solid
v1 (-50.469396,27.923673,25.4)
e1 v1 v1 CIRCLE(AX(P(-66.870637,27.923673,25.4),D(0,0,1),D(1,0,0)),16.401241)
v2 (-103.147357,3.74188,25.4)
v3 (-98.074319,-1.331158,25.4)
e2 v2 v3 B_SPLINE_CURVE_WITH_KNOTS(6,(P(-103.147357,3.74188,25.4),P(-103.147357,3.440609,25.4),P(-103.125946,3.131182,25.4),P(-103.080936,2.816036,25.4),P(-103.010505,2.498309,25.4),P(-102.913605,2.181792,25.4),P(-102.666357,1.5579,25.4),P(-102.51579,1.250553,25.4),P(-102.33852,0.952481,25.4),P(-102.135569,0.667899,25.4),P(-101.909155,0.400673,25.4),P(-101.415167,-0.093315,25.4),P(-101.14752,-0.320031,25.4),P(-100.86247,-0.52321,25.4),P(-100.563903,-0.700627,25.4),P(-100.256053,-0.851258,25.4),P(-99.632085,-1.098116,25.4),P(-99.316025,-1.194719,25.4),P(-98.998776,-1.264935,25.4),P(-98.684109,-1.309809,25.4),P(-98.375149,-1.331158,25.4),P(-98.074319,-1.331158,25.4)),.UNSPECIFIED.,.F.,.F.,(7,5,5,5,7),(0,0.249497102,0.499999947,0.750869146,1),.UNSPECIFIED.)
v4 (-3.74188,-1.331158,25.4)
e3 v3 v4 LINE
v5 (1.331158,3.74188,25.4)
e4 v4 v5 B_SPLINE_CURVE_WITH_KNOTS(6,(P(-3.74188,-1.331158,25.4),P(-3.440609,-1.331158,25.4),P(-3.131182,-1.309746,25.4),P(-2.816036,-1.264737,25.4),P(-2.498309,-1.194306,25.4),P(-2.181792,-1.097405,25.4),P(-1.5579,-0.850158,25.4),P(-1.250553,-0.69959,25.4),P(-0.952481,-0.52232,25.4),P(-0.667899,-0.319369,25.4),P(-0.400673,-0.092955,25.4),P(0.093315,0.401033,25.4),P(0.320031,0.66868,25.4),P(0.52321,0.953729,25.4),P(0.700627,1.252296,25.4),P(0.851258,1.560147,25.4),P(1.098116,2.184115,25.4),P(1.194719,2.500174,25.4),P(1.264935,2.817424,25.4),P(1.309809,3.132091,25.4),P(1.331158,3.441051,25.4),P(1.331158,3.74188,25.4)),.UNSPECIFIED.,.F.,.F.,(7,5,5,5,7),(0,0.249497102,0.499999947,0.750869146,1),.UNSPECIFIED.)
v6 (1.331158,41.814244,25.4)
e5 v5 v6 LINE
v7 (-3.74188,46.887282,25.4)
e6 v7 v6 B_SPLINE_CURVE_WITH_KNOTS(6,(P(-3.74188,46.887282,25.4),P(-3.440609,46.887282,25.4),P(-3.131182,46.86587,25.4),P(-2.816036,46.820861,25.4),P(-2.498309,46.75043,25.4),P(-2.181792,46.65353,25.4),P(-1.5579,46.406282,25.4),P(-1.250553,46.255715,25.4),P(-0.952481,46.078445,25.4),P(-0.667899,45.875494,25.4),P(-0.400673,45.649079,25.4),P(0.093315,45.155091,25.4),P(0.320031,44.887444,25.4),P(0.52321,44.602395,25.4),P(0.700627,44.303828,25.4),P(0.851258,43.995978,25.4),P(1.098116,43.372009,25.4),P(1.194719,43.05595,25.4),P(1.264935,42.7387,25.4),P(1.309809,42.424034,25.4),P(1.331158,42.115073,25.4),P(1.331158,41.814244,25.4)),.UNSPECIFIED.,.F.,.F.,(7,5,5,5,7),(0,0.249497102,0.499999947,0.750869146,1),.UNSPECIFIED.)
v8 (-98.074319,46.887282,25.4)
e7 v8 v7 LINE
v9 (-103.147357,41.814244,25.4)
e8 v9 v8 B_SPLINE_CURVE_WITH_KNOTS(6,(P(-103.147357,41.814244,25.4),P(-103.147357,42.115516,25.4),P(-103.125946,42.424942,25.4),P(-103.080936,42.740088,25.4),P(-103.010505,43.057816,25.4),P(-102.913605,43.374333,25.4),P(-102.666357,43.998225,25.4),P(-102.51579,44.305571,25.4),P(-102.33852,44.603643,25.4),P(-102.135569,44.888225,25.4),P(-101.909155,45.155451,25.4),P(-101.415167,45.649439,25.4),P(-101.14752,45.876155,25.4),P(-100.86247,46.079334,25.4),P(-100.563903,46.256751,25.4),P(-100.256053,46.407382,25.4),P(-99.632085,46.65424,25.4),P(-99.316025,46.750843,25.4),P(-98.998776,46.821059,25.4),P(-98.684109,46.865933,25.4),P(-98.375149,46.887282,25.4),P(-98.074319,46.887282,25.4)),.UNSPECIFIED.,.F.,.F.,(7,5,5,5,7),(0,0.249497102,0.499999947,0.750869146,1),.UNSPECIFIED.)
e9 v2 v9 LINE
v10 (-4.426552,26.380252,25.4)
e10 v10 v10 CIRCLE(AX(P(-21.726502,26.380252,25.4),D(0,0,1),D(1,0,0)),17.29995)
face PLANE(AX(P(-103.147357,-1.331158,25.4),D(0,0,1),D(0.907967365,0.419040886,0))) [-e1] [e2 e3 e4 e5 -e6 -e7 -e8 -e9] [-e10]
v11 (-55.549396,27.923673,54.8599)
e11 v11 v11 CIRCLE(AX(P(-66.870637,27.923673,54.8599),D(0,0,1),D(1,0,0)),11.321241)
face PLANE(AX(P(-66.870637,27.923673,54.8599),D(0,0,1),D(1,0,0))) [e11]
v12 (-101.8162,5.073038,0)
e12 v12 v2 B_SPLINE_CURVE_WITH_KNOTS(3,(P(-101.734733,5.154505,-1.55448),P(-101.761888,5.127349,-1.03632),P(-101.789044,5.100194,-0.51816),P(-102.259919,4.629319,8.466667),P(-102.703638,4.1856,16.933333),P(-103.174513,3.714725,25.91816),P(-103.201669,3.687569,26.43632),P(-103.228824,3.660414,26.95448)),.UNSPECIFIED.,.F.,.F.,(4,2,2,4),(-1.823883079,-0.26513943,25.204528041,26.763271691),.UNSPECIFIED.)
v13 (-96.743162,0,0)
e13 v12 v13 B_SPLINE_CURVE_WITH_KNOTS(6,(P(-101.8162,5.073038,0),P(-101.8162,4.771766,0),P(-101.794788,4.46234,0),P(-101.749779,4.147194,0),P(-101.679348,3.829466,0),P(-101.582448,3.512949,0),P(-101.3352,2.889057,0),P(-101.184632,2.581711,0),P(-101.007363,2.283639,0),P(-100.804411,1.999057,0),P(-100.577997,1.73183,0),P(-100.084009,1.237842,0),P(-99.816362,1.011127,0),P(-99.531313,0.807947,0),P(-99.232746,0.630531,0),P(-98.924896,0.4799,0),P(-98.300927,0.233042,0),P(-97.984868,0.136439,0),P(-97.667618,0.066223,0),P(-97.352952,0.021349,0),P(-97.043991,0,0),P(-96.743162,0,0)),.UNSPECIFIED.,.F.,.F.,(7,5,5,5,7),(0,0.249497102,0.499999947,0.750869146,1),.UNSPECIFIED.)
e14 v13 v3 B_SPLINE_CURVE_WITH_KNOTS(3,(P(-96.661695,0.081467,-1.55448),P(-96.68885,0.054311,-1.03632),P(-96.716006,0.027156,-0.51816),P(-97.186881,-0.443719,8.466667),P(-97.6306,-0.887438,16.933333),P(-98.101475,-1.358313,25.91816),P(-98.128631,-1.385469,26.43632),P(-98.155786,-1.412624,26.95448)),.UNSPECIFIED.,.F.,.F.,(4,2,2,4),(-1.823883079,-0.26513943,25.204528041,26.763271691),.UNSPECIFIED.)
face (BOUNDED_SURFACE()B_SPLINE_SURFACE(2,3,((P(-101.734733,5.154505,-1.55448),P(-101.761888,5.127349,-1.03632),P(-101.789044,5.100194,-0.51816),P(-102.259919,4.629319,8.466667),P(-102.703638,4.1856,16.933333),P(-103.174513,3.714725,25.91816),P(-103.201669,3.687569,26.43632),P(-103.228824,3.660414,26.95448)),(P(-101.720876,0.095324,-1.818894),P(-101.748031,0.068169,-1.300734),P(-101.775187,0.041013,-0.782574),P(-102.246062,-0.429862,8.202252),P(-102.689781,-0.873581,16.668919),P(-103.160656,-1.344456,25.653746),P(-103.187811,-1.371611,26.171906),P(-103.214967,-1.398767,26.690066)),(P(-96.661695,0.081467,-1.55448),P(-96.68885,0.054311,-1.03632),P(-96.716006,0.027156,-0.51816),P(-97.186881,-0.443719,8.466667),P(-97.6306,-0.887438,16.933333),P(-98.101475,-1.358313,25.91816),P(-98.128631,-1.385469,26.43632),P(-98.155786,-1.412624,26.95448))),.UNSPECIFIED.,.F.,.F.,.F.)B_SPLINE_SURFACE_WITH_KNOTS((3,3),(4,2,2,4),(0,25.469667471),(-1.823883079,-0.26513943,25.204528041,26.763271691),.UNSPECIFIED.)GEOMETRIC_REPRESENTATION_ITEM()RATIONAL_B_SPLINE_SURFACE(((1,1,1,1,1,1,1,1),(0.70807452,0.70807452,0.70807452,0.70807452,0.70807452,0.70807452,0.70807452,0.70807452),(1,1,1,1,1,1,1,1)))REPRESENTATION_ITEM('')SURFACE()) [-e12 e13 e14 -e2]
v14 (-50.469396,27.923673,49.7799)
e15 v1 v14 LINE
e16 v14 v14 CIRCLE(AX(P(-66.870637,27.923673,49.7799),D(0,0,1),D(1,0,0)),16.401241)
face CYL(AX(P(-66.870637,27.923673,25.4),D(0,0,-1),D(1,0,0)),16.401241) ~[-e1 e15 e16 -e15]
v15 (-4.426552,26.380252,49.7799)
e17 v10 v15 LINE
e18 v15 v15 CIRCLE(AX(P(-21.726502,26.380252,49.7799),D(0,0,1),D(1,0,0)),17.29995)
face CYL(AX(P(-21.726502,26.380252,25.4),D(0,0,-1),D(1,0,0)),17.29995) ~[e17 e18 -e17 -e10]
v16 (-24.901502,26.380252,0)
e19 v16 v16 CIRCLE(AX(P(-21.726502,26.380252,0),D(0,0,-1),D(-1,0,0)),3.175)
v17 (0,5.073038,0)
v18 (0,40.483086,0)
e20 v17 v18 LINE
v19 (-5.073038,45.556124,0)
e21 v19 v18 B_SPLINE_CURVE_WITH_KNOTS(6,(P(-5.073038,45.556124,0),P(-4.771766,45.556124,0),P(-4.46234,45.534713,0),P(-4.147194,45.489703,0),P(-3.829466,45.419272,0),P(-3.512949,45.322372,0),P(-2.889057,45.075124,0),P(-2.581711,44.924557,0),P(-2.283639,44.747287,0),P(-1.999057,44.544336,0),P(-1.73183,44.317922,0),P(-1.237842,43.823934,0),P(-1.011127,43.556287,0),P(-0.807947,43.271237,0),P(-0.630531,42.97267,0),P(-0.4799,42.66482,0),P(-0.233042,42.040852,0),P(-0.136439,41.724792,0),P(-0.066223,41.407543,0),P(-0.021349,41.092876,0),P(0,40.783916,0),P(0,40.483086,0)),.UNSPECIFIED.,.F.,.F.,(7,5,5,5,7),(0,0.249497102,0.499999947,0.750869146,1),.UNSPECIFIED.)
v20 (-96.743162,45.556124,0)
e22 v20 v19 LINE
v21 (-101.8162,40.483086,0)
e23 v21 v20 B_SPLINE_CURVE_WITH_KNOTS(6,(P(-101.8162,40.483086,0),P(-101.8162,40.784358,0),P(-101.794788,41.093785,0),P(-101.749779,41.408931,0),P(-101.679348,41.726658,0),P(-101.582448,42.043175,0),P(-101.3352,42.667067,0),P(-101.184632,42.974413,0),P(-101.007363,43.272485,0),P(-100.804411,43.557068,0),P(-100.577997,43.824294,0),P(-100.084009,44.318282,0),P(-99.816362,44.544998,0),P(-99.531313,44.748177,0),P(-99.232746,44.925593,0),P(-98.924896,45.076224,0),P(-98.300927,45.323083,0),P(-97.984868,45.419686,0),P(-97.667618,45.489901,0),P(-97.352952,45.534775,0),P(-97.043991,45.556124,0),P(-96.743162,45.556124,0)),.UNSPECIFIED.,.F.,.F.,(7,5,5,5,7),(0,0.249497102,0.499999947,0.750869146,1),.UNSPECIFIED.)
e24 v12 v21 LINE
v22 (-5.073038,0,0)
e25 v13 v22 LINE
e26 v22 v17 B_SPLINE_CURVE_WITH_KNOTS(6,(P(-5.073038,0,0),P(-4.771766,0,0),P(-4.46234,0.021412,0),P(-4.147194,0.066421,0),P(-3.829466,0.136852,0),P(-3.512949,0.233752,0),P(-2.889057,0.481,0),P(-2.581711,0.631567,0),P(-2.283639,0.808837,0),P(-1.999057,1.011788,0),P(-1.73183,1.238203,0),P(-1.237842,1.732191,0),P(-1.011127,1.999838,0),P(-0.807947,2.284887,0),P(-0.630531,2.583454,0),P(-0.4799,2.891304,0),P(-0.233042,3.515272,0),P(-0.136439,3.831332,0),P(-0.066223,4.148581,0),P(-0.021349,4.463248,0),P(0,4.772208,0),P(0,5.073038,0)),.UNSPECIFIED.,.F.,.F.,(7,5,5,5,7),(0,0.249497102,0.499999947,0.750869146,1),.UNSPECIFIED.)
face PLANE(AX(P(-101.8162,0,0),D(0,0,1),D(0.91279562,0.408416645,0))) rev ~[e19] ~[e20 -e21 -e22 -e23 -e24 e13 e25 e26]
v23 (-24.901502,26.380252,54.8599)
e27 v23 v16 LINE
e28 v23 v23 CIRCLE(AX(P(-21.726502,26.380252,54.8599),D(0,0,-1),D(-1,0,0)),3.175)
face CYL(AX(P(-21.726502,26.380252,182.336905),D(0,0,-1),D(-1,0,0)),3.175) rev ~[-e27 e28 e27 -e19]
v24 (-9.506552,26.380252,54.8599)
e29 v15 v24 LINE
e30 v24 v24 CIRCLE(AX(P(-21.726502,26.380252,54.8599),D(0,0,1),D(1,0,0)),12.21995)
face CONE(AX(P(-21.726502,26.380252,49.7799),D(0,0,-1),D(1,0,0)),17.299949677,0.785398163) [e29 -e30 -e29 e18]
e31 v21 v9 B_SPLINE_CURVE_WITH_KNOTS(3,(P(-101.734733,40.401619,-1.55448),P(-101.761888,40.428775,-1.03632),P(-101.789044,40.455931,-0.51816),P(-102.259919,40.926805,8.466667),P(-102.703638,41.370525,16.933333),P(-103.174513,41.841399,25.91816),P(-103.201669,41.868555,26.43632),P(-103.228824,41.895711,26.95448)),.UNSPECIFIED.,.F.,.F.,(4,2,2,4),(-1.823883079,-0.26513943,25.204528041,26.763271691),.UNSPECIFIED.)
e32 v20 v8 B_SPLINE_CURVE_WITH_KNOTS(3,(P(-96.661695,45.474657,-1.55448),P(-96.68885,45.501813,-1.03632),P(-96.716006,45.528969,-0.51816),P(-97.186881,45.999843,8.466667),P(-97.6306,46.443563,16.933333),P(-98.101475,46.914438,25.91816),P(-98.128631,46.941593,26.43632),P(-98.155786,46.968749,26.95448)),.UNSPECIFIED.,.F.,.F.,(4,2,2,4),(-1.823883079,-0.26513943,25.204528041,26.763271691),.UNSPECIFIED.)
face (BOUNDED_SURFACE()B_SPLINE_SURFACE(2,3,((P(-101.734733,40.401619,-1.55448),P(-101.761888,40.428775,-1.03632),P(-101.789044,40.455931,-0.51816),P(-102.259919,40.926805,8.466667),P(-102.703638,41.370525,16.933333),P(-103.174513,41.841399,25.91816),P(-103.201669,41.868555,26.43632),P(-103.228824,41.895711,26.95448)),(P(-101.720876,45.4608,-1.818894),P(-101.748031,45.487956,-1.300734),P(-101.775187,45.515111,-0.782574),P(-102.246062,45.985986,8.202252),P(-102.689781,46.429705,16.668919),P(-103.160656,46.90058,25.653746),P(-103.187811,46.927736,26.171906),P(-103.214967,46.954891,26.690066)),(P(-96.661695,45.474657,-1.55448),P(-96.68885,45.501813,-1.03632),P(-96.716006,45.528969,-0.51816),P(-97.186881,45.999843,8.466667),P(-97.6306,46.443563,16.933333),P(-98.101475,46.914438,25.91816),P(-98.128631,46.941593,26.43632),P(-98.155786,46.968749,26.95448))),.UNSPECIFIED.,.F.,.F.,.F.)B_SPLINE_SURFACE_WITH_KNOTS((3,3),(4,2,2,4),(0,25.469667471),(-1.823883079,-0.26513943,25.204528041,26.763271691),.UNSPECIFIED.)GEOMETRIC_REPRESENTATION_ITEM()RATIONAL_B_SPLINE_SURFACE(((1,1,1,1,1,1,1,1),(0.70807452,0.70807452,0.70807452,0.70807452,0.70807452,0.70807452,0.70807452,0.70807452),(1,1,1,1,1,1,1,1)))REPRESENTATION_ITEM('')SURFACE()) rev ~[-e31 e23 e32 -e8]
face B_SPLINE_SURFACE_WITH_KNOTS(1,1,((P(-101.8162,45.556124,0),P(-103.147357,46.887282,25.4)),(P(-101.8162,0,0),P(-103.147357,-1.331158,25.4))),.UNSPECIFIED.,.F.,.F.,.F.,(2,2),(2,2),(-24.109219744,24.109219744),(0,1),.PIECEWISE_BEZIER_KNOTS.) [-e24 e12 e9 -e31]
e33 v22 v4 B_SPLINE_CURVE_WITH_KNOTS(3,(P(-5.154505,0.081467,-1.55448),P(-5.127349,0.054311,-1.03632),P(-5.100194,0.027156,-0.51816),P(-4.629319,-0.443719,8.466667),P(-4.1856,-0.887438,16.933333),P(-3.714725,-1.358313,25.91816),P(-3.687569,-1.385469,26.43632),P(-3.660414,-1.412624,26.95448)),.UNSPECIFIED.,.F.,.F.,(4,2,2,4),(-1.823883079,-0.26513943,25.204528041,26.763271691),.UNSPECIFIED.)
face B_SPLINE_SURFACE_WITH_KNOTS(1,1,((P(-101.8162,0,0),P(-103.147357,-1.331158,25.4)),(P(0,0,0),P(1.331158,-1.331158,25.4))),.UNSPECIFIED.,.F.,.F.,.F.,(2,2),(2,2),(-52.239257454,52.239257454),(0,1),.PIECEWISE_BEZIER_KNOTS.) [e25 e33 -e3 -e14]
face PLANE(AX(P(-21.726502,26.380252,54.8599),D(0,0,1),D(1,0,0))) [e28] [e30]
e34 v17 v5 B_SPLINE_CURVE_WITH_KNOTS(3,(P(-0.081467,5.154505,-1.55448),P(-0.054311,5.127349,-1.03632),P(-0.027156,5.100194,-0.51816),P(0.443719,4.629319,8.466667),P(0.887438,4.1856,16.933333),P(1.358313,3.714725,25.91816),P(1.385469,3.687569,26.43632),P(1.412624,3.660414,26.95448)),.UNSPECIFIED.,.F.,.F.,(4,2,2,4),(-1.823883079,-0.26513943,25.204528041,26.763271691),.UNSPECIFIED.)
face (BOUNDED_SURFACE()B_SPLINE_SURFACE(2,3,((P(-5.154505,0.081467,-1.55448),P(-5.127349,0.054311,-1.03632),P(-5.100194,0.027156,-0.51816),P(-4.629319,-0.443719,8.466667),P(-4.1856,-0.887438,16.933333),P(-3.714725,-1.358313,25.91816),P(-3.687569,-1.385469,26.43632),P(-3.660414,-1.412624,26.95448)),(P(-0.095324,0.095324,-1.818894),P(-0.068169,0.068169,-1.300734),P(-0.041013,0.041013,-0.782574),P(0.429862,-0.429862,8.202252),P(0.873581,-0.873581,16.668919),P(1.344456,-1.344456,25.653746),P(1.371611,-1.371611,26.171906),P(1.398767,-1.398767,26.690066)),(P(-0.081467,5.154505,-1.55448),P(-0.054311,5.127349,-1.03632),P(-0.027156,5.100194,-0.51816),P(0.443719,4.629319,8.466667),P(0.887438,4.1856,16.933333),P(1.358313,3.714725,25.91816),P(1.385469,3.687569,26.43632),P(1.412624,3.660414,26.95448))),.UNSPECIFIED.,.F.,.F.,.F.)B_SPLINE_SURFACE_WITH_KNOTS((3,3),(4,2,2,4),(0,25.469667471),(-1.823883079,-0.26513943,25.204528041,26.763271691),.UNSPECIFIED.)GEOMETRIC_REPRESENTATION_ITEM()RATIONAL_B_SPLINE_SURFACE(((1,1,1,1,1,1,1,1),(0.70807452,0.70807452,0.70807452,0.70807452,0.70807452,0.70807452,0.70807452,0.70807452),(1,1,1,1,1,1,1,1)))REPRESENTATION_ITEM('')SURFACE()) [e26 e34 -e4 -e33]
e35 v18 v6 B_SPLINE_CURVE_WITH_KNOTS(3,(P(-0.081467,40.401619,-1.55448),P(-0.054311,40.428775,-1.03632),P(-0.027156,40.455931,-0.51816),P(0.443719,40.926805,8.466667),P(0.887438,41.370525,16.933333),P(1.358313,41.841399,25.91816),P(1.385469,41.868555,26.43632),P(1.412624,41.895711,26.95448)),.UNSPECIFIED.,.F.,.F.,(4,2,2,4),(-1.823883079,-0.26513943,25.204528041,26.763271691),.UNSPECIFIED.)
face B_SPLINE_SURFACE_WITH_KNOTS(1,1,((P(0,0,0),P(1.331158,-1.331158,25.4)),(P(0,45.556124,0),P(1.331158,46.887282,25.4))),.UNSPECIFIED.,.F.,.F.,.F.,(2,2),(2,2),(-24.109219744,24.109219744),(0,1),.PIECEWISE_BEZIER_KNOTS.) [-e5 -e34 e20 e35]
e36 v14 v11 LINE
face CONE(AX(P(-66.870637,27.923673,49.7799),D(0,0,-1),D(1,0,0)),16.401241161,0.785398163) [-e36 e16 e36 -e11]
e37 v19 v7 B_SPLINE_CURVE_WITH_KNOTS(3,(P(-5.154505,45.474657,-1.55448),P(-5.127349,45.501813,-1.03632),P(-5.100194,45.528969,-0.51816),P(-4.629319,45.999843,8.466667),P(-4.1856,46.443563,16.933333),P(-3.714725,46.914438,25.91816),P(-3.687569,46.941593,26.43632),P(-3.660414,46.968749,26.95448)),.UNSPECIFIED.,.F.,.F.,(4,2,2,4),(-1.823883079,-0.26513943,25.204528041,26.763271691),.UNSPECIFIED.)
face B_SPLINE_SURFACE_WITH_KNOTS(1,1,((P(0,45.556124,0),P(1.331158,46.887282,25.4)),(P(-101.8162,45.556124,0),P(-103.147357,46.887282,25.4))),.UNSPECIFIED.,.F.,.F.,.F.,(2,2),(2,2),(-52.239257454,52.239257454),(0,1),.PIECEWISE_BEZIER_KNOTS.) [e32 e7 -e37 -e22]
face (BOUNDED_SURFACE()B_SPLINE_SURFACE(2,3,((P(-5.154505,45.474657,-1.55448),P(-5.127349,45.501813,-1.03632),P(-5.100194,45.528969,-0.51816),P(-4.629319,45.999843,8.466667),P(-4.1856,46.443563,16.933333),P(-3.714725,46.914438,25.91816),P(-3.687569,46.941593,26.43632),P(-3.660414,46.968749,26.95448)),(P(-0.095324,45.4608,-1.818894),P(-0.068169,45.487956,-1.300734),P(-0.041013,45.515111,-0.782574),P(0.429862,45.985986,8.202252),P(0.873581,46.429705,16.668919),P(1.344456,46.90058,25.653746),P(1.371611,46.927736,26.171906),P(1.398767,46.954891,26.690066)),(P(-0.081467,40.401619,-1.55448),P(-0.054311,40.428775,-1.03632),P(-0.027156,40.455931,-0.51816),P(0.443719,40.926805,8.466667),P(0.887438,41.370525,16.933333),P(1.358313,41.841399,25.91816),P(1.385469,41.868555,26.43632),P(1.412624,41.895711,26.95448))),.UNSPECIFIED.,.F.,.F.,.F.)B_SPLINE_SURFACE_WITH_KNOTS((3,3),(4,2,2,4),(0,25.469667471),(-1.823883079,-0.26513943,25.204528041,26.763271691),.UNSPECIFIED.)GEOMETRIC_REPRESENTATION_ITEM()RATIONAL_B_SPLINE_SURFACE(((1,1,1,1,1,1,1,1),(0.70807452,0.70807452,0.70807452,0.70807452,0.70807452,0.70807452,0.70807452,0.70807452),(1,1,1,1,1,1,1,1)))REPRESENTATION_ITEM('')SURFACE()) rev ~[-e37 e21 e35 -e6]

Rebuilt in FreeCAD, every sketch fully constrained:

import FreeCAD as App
import Part
import Sketcher
Q = App.Units.Quantity


def edges_at(feature, points):
    """Names of the edges that pass closest to the given points."""
    edges = feature.Shape.Edges
    near = lambda p: min(range(len(edges)), key=lambda i: edges[i].distToShape(Part.Vertex(*p))[0])
    return sorted({f"Edge{near(p) + 1}" for p in points})

doc = App.newDocument("Part")
body = doc.addObject("PartDesign::Body", "Body")

# Sketch on XY plane
sketch1 = body.newObject("Sketcher::SketchObject", "Sketch")
sketch1.AttachmentSupport = (doc.getObject("XY_Plane"), [""])
sketch1.MapMode = "FlatFace"
sketch1.addGeometry(Part.LineSegment(App.Vector(-102, 46, 0), App.Vector(-102, 0, 0)), False)
sketch1.addGeometry(Part.LineSegment(App.Vector(-102, 0, 0), App.Vector(0, 0, 0)), False)
sketch1.addGeometry(Part.LineSegment(App.Vector(0, 0, 0), App.Vector(0, 46, 0)), False)
sketch1.addGeometry(Part.LineSegment(App.Vector(0, 46, 0), App.Vector(-102, 46, 0)), False)
sketch1.addConstraint(Sketcher.Constraint("Coincident", 0, 2, 1, 1))
sketch1.addConstraint(Sketcher.Constraint("Coincident", 1, 2, 2, 1))
sketch1.addConstraint(Sketcher.Constraint("Coincident", 2, 2, 3, 1))
sketch1.addConstraint(Sketcher.Constraint("Coincident", 3, 2, 0, 1))
sketch1.addConstraint(Sketcher.Constraint("Vertical", 0))
sketch1.addConstraint(Sketcher.Constraint("Horizontal", 1))
sketch1.addConstraint(Sketcher.Constraint("Vertical", 2))
sketch1.addConstraint(Sketcher.Constraint("Horizontal", 3))
sketch1.addConstraint(Sketcher.Constraint("Coincident", 1, 2, -1, 1))
sketch1.addConstraint(Sketcher.Constraint("DistanceX", 1, 1, 1, 2, 101.8162))
sketch1.addConstraint(Sketcher.Constraint("DistanceY", 0, 2, 0, 1, 45.556124))
pad1 = body.newObject("PartDesign::Pad", "Pad")
pad1.Profile = sketch1
pad1.Length = Q("1 in")
pad1.TaperAngle = 3

# Sketch on XY plane
sketch2 = body.newObject("Sketcher::SketchObject", "Sketch001")
sketch2.AttachmentSupport = (doc.getObject("XY_Plane"), [""])
sketch2.MapMode = "FlatFace"
sketch2.AttachmentOffset = App.Placement(App.Vector(0, 0, 1 * 25.4), App.Rotation())
sketch2.addGeometry(Part.Circle(App.Vector(-67, 28, 0), App.Vector(0, 0, 1), 16), False)
sketch2.addGeometry(Part.Circle(App.Vector(-22, 26, 0), App.Vector(0, 0, 1), 17), False)
sketch2.addConstraint(Sketcher.Constraint("Diameter", 1, 34.599899))
sketch2.addConstraint(Sketcher.Constraint("Diameter", 0, 32.802482))
sketch2.addConstraint(Sketcher.Constraint("DistanceY", 1, 3, 0, 3, 1.543421))
sketch2.addConstraint(Sketcher.Constraint("DistanceX", 0, 3, -1, 1, 66.870637))
sketch2.addConstraint(Sketcher.Constraint("DistanceY", -1, 1, 0, 3, 27.923673))
sketch2.addConstraint(Sketcher.Constraint("DistanceX", 1, 3, -1, 1, 21.726502))
pad2 = body.newObject("PartDesign::Pad", "Pad001")
pad2.Profile = sketch2
pad2.Length = 29.4599
doc.recompute()

fillet = body.newObject("PartDesign::Fillet", "Fillet")
fillet.Base = (pad2, edges_at(pad2, [
    (-102.482, -0.666, 12.7),
    (0.666, -0.666, 12.7),
    (0.666, 46.222, 12.7),
    (-102.482, 46.222, 12.7),
]))
fillet.Radius = Q("0.2 in")
doc.recompute()

chamfer = body.newObject("PartDesign::Chamfer", "Chamfer")
chamfer.Base = (fillet, edges_at(fillet, [(-39.026, 26.38, 54.86), (-83.272, 27.924, 54.86)]))
chamfer.Size = Q("0.2 in")

# Sketch on XY plane
sketch3 = body.newObject("Sketcher::SketchObject", "Sketch002")
sketch3.AttachmentSupport = (doc.getObject("XY_Plane"), [""])
sketch3.MapMode = "FlatFace"
sketch3.AttachmentOffset = App.Placement(App.Vector(0, 0, 54.8599), App.Rotation())
sketch3.addGeometry(Part.Circle(App.Vector(-21.7, 26.4, 0), App.Vector(0, 0, 1), 3.2), False)
sketch3.addConstraint(Sketcher.Constraint("Diameter", 0, Q("0.25 in")))
sketch3.addConstraint(Sketcher.Constraint("DistanceX", 0, 3, -1, 1, 21.726502))
sketch3.addConstraint(Sketcher.Constraint("DistanceY", -1, 1, 0, 3, 26.380252))
doc.recompute()
hole = body.newObject("PartDesign::Hole", "Hole")
hole.Profile = sketch3
hole.ThreadType = "None"
hole.Diameter = Q("0.25 in")
hole.DepthType = "ThroughAll"

doc.recompute()
